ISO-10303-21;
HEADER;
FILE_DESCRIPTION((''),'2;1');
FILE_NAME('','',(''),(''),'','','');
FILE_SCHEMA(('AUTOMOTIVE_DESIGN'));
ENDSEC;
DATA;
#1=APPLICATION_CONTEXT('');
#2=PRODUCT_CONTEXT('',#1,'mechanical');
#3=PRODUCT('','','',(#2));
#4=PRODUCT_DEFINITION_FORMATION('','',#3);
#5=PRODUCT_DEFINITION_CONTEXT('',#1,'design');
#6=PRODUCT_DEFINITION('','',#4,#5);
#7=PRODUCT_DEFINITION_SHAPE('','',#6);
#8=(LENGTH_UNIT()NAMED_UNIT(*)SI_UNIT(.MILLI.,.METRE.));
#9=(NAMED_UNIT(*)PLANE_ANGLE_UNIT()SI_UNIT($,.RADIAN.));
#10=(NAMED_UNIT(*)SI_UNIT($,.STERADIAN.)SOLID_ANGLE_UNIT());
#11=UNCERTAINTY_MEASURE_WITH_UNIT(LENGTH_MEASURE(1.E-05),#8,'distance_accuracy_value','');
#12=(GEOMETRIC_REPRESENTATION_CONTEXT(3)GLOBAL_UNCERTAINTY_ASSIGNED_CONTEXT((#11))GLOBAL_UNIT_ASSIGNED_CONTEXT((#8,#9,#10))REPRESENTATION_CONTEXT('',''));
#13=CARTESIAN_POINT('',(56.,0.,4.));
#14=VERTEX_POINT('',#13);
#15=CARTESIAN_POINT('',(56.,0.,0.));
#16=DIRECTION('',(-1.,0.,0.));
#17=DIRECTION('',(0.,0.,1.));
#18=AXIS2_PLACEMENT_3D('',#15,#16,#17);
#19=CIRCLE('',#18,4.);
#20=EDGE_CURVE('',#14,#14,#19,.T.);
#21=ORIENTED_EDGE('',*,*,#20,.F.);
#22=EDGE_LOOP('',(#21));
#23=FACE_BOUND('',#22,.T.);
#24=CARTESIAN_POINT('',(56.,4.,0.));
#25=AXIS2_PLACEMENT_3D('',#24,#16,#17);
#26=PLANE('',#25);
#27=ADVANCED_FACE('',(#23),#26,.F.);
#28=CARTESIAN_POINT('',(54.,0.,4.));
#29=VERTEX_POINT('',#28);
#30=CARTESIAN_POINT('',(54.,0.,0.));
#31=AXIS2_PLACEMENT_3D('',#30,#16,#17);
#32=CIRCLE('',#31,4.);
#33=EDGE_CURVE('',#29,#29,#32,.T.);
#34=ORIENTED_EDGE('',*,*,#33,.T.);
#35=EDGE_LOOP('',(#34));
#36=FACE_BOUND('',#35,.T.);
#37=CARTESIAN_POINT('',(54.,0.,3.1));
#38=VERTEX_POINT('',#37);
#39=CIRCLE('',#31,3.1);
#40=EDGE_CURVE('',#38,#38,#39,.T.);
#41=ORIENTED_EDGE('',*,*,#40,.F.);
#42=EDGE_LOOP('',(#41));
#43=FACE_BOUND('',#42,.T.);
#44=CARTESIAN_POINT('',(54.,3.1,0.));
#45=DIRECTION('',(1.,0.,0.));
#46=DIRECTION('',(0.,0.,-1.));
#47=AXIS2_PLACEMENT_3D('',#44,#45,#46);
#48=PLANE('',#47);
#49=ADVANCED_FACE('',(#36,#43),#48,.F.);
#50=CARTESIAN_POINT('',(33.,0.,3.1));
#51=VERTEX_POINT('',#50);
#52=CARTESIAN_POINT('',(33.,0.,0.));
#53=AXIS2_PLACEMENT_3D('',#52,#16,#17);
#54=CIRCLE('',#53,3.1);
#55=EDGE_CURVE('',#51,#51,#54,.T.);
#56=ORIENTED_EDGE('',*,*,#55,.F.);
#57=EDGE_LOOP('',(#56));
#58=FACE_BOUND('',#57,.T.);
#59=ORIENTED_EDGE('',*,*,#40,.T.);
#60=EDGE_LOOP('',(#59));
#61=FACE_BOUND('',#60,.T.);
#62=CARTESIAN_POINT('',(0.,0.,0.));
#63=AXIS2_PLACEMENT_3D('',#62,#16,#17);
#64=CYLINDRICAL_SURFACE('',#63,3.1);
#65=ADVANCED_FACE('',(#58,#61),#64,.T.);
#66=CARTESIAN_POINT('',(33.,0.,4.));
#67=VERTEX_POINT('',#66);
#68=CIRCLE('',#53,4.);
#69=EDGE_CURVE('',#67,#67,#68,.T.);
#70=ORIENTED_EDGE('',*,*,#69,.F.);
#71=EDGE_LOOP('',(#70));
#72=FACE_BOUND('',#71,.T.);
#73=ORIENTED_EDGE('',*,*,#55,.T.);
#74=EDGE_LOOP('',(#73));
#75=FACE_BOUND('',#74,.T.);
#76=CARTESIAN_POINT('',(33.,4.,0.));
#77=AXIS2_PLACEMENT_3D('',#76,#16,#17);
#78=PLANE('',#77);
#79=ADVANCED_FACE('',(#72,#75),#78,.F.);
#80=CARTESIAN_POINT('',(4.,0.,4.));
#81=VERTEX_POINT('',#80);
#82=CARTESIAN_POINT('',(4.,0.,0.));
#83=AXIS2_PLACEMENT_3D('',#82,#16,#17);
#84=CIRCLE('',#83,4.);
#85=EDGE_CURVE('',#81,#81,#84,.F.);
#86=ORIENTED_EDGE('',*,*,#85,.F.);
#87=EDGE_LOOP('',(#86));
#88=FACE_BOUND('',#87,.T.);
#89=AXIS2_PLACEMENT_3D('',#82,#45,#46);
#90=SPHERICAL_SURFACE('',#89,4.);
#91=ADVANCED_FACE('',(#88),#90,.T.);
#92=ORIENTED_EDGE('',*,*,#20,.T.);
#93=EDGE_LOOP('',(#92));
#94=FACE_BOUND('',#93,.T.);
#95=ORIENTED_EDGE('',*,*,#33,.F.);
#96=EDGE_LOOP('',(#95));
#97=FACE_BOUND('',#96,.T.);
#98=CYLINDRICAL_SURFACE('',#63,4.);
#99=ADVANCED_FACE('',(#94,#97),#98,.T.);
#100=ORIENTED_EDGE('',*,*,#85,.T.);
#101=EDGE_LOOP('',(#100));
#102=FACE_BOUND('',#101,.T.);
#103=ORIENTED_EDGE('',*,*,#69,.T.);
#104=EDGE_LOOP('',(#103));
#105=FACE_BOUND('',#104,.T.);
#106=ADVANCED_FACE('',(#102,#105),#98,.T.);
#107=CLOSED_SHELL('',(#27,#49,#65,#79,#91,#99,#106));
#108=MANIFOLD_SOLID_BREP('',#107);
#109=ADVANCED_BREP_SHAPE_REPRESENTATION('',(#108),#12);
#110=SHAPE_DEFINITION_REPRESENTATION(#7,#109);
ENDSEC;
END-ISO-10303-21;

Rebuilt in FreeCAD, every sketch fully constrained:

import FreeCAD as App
import Part
import Sketcher
Q = App.Units.Quantity


def edges_at(feature, points):
    """Names of the edges that pass closest to the given points."""
    edges = feature.Shape.Edges
    near = lambda p: min(range(len(edges)), key=lambda i: edges[i].distToShape(Part.Vertex(*p))[0])
    return sorted({f"Edge{near(p) + 1}" for p in points})

doc = App.newDocument("Part")
params = doc.addObject("Spreadsheet::Sheet", "Params")
for row, (alias, value) in enumerate([
    ("sketch1_width", "56 mm"),
    ("sketch1_width2", "2 mm"),
    ("sketch1_width3", "21 mm"),
    ("sketch1_height", "4 mm"),
    ("sketch1_height2", "0.9 mm"),
    ("revolution_angle", "360 deg"),
    ("fillet_radius", "4 mm"),
], start=1):
    params.set(f"A{row}", alias)
    params.set(f"B{row}", "=" + value)
    params.setAlias(f"B{row}", alias)

body = doc.addObject("PartDesign::Body", "Body")

sketch1 = body.newObject("Sketcher::SketchObject", "Sketch")
sketch1.AttachmentSupport = (doc.getObject("XY_Plane"), [""])
sketch1.MapMode = "FlatFace"
sketch1.addGeometry(Part.LineSegment(App.Vector(0, 4, 0), App.Vector(0, 0, 0)), False)
sketch1.addGeometry(Part.LineSegment(App.Vector(0, 0, 0), App.Vector(56, 0, 0)), False)
sketch1.addGeometry(Part.LineSegment(App.Vector(56, 0, 0), App.Vector(56, 4, 0)), False)
sketch1.addGeometry(Part.LineSegment(App.Vector(56, 4, 0), App.Vector(54, 4, 0)), False)
sketch1.addGeometry(Part.LineSegment(App.Vector(54, 4, 0), App.Vector(54, 3.1, 0)), False)
sketch1.addGeometry(Part.LineSegment(App.Vector(54, 3.1, 0), App.Vector(33, 3.1, 0)), False)
sketch1.addGeometry(Part.LineSegment(App.Vector(33, 3.1, 0), App.Vector(33, 4, 0)), False)
sketch1.addGeometry(Part.LineSegment(App.Vector(33, 4, 0), App.Vector(0, 4, 0)), False)
sketch1.addConstraint(Sketcher.Constraint("Coincident", 0, 2, 1, 1))
sketch1.addConstraint(Sketcher.Constraint("Coincident", 1, 2, 2, 1))
sketch1.addConstraint(Sketcher.Constraint("Coincident", 2, 2, 3, 1))
sketch1.addConstraint(Sketcher.Constraint("Coincident", 3, 2, 4, 1))
sketch1.addConstraint(Sketcher.Constraint("Coincident", 4, 2, 5, 1))
sketch1.addConstraint(Sketcher.Constraint("Coincident", 5, 2, 6, 1))
sketch1.addConstraint(Sketcher.Constraint("Coincident", 6, 2, 7, 1))
sketch1.addConstraint(Sketcher.Constraint("Coincident", 7, 2, 0, 1))
sketch1.addConstraint(Sketcher.Constraint("Vertical", 0))
sketch1.addConstraint(Sketcher.Constraint("Horizontal", 1))
sketch1.addConstraint(Sketcher.Constraint("Vertical", 2))
sketch1.addConstraint(Sketcher.Constraint("Horizontal", 3))
sketch1.addConstraint(Sketcher.Constraint("Vertical", 4))
sketch1.addConstraint(Sketcher.Constraint("Horizontal", 5))
sketch1.addConstraint(Sketcher.Constraint("Vertical", 6))
sketch1.addConstraint(Sketcher.Constraint("Horizontal", 7))
sketch1.addConstraint(Sketcher.Constraint("Coincident", 0, 2, -1, 1))
sketch1.addConstraint(Sketcher.Constraint("Horizontal", 3, 2, 6, 2))
sketch1.addConstraint(Sketcher.Constraint("DistanceX", 1, 1, 1, 2, Q("56 mm")))
sketch1.addConstraint(Sketcher.Constraint("DistanceX", 3, 2, 3, 1, Q("2 mm")))
sketch1.addConstraint(Sketcher.Constraint("DistanceX", 5, 2, 5, 1, Q("21 mm")))
sketch1.addConstraint(Sketcher.Constraint("DistanceY", 0, 2, 0, 1, Q("4 mm")))
sketch1.addConstraint(Sketcher.Constraint("DistanceY", 4, 2, 4, 1, Q("0.9 mm")))
sketch1.setExpression("Constraints[18]", "Params.sketch1_width")
sketch1.setExpression("Constraints[19]", "Params.sketch1_width2")
sketch1.setExpression("Constraints[20]", "Params.sketch1_width3")
sketch1.setExpression("Constraints[21]", "Params.sketch1_height")
sketch1.setExpression("Constraints[22]", "Params.sketch1_height2")
revolution = body.newObject("PartDesign::Revolution", "Revolution")
revolution.Profile = sketch1
revolution.ReferenceAxis = (sketch1, ["H_Axis"])
revolution.setExpression("Angle", "Params.revolution_angle")
doc.recompute()

fillet = body.newObject("PartDesign::Fillet", "Fillet")
fillet.Base = (revolution, edges_at(revolution, [(0, 0, -4)]))
fillet.setExpression("Radius", "Params.fillet_radius")

doc.recompute()
